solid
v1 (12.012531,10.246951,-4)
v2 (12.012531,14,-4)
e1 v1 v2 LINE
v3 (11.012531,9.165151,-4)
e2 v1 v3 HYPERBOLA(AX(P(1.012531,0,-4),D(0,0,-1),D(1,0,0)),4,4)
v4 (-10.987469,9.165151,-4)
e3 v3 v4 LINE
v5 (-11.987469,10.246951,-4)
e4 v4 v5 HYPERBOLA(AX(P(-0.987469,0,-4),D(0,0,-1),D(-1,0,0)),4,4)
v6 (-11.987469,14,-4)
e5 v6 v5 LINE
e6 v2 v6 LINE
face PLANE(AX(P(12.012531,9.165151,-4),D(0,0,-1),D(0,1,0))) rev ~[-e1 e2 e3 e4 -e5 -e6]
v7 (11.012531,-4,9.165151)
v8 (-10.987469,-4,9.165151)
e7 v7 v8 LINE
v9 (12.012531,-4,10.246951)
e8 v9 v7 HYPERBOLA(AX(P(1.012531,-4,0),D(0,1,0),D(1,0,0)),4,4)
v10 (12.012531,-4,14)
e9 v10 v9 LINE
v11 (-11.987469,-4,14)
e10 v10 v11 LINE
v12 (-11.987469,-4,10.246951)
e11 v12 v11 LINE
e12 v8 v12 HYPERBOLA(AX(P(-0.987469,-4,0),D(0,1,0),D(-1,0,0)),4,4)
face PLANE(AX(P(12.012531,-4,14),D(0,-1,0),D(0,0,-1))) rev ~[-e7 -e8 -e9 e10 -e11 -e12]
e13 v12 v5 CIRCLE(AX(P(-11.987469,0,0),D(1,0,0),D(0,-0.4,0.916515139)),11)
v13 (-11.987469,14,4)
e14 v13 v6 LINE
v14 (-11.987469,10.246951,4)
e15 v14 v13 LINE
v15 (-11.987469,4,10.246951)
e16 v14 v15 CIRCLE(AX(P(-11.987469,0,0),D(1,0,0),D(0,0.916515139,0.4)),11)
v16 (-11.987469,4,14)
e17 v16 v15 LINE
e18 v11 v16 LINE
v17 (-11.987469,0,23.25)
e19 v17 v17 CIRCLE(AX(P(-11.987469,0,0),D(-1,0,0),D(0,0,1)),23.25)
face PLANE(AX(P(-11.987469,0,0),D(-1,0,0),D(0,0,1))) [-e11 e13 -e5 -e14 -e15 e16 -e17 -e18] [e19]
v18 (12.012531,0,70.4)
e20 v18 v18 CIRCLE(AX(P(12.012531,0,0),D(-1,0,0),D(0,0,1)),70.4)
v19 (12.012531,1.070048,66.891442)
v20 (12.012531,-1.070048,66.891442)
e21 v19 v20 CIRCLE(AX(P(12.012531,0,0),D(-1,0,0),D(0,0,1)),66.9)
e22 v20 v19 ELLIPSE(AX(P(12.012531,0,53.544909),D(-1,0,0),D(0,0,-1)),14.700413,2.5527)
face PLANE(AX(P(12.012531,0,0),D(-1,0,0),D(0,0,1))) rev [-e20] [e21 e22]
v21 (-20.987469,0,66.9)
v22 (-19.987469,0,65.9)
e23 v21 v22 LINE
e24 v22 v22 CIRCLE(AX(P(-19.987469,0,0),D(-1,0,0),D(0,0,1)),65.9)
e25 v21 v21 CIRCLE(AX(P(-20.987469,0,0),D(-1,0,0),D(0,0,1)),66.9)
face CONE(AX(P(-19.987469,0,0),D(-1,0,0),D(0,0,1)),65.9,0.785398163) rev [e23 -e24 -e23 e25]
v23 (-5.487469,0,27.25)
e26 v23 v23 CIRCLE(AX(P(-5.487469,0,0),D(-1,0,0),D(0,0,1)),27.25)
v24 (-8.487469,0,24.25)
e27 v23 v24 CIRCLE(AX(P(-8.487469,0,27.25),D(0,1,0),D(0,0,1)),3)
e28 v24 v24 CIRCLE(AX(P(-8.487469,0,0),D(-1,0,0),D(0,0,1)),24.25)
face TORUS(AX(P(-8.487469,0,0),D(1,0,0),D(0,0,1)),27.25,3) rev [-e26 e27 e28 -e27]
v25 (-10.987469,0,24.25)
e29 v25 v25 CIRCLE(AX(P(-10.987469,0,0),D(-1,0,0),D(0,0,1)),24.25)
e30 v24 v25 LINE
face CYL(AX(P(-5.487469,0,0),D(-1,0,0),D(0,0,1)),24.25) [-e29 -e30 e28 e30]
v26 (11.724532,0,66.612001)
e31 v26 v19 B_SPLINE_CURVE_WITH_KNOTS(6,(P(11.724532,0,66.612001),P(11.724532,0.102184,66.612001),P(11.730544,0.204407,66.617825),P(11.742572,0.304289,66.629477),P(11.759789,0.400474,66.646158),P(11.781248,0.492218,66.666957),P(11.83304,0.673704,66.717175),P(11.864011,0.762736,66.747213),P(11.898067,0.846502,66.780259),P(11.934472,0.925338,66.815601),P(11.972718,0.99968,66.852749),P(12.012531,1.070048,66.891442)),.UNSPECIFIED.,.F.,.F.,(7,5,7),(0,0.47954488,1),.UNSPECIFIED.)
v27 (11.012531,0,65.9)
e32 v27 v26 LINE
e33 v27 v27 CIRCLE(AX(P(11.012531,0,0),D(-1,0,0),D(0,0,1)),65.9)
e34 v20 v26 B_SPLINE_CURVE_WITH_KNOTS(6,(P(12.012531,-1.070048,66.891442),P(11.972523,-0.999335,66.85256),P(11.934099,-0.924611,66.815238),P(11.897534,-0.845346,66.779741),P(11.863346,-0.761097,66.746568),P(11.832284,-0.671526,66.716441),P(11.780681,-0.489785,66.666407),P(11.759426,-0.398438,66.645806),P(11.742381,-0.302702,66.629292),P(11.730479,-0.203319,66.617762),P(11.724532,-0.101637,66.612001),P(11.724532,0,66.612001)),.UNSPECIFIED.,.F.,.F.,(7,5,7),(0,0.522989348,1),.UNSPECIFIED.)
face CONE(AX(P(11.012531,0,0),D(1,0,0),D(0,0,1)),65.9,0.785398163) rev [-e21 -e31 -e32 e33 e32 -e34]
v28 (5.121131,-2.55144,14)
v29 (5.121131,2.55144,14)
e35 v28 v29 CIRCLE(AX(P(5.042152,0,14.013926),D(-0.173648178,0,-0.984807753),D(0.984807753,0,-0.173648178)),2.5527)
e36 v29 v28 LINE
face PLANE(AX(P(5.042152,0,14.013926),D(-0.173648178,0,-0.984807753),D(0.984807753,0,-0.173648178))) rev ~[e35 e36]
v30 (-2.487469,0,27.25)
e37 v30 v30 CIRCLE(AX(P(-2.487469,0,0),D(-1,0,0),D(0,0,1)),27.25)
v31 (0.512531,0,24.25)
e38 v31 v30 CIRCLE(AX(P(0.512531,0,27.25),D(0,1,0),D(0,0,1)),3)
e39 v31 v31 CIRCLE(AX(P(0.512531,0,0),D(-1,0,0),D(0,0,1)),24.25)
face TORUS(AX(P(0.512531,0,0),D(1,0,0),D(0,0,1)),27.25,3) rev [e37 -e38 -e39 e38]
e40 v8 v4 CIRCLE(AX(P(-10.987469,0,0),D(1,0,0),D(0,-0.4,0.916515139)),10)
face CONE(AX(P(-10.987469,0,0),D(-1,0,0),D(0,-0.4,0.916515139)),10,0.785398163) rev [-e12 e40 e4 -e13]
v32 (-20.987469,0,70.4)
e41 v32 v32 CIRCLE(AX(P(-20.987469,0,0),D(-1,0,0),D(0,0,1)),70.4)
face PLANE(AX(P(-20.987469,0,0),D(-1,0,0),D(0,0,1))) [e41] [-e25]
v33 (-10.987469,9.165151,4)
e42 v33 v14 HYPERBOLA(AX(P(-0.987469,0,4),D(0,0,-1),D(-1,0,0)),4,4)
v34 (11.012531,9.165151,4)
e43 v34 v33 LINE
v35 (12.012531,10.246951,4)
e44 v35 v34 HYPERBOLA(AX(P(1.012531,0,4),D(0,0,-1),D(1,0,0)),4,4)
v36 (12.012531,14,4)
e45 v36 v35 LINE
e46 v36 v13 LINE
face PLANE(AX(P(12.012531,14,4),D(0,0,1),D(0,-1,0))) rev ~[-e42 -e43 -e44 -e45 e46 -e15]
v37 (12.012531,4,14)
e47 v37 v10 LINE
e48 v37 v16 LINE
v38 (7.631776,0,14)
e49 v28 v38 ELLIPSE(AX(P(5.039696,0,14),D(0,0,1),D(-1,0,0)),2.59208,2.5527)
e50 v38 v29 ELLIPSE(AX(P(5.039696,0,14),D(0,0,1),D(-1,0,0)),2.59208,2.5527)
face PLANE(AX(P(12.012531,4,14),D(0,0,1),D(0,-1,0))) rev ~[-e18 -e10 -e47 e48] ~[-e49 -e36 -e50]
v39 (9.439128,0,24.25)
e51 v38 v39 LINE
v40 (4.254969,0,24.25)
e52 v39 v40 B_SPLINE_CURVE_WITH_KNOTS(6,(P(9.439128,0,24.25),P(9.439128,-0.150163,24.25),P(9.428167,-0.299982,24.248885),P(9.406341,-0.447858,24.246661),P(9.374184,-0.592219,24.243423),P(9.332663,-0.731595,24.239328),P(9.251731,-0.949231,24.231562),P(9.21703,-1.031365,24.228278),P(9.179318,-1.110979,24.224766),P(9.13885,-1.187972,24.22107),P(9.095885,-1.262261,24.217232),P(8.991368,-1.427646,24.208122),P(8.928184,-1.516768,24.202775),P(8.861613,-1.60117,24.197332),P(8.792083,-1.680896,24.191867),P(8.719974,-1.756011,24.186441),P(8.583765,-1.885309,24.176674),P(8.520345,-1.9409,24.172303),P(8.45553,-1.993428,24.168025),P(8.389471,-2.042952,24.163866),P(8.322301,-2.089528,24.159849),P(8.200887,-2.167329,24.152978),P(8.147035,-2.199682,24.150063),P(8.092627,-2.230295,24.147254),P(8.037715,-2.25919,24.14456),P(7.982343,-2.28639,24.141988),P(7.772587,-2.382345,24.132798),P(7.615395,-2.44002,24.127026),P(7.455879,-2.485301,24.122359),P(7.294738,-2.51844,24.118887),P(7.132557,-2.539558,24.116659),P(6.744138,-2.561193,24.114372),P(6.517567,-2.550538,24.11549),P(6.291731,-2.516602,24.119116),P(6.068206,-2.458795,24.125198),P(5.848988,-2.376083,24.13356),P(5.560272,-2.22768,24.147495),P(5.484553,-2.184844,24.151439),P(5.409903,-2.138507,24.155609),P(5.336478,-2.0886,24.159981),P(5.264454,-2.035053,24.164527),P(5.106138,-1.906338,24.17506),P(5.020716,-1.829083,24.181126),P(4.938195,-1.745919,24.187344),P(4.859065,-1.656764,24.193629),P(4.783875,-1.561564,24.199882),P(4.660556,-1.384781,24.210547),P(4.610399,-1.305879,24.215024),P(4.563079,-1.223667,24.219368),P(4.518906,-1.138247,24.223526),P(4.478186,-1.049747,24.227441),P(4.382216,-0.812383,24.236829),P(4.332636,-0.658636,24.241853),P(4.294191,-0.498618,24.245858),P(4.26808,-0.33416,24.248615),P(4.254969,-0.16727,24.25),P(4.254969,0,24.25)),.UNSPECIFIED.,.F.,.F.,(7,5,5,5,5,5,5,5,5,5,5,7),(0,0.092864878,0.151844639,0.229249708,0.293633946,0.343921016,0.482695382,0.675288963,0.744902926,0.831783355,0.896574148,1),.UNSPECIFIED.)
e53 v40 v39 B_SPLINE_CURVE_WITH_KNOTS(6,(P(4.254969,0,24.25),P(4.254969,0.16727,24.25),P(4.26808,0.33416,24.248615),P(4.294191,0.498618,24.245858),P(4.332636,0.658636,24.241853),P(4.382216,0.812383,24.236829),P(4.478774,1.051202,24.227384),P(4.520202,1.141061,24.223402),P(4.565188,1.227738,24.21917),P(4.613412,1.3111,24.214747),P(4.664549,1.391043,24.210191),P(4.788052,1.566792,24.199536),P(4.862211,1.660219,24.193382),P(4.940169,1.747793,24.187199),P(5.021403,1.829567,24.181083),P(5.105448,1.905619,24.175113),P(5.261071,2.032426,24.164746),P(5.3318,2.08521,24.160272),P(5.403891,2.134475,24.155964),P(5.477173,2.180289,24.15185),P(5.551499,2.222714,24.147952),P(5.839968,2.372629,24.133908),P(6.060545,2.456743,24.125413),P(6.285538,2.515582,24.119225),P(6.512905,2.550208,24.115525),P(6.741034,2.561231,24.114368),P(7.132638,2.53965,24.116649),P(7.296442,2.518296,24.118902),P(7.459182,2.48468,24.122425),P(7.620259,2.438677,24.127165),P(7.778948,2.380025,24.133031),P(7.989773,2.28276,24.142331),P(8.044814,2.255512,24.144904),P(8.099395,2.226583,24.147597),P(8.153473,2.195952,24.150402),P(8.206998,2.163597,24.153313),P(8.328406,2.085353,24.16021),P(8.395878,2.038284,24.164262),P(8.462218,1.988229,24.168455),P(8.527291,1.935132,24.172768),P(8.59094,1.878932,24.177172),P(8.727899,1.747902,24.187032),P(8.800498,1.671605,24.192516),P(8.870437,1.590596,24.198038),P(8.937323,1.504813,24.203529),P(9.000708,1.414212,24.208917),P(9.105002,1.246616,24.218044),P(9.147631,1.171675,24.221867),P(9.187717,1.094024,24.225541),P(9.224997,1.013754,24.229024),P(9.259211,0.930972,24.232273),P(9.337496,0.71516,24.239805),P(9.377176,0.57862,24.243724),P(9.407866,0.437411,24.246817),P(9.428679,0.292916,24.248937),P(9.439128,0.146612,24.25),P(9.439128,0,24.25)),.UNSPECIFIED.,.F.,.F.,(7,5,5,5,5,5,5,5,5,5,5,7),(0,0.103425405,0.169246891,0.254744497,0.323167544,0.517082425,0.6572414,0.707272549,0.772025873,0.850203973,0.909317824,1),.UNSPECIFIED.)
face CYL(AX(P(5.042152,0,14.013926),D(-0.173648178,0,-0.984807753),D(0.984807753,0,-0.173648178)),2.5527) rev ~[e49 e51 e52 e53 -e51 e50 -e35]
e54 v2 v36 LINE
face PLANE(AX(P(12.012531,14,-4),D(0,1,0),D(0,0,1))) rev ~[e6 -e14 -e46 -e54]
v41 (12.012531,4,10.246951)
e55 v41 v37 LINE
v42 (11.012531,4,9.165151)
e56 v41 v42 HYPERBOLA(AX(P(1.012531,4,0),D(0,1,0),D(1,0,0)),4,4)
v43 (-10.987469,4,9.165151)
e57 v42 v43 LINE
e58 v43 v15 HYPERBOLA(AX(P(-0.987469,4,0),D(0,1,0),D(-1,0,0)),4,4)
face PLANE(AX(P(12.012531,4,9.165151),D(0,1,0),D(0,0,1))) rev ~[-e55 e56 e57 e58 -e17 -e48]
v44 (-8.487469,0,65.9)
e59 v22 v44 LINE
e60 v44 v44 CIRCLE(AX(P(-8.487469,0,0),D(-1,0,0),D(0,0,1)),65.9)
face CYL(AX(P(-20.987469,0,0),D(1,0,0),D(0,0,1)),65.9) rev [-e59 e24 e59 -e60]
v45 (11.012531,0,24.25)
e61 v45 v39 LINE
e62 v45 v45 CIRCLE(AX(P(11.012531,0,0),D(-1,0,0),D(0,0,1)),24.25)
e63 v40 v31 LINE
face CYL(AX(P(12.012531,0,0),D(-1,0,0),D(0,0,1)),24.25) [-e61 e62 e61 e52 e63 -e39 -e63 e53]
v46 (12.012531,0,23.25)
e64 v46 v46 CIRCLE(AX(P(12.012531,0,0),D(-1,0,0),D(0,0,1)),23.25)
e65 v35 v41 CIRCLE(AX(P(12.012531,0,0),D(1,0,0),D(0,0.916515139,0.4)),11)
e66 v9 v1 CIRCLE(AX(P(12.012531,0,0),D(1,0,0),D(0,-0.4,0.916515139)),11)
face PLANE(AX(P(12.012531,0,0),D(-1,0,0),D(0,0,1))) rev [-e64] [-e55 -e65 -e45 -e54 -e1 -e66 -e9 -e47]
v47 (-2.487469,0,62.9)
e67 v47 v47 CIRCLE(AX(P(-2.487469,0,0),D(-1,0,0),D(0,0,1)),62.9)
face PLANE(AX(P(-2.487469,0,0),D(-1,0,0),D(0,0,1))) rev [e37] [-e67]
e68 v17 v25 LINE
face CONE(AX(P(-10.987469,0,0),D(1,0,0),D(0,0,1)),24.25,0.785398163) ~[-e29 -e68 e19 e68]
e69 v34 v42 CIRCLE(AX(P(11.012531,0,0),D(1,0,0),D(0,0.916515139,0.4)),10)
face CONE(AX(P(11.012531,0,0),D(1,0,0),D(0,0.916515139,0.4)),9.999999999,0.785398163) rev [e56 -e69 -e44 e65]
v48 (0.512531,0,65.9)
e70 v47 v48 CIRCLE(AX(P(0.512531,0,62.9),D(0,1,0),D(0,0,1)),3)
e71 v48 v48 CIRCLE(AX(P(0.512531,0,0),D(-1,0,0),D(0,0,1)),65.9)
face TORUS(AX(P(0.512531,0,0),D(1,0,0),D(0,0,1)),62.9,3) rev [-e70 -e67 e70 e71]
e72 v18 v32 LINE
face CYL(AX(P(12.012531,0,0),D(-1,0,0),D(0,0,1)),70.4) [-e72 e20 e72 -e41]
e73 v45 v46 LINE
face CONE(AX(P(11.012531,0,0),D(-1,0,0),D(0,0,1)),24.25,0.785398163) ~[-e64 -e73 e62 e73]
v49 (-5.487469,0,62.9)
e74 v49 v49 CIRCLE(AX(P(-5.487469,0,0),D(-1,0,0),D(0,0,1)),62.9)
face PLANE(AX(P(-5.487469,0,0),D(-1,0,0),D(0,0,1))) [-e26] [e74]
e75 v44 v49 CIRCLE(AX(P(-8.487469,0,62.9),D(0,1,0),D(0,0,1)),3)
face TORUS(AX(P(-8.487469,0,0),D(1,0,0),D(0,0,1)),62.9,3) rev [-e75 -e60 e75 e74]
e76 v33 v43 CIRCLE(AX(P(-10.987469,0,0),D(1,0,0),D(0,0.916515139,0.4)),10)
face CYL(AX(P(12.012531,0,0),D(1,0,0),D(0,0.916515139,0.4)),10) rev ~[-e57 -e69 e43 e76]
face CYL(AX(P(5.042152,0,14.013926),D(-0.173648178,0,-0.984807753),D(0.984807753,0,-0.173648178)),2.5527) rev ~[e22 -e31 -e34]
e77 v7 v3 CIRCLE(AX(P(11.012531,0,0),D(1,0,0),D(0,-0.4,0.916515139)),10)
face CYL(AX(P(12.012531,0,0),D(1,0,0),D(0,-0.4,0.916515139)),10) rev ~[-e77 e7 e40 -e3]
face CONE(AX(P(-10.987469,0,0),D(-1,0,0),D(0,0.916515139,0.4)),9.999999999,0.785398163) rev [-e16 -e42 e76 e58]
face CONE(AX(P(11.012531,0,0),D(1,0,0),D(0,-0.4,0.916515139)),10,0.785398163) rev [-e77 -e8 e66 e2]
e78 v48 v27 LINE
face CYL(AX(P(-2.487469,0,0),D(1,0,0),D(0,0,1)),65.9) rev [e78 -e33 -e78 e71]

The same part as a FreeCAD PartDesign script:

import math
import FreeCAD as App
import Part
import Sketcher
from FreeCAD import Vector


def edges_at(feature, points):
    """Names of the edges that pass closest to the given points."""
    edges = feature.Shape.Edges
    near = lambda p: min(range(len(edges)), key=lambda i: edges[i].distToShape(Part.Vertex(*p))[0])
    return sorted({f"Edge{near(p) + 1}" for p in points})


def add_polygon(sketch, points):
    """Adds a closed chain of lines whose ends are joined by coincident constraints."""
    first, n = sketch.GeometryCount, len(points)
    for a, b in zip(points, points[1:] + points[:1]):
        sketch.addGeometry(Part.LineSegment(App.Vector(*a, 0), App.Vector(*b, 0)), False)
    for i in range(n):
        sketch.addConstraint(Sketcher.Constraint("Coincident", first + i, 2, first + (i + 1) % n, 1))

doc = App.newDocument("Part")
body = doc.addObject("PartDesign::Body", "Body")

sketch1 = body.newObject("Sketcher::SketchObject", "Sketch")
sketch1.AttachmentSupport = (doc.getObject("XZ_Plane"), [""])
sketch1.MapMode = "FlatFace"
add_polygon(sketch1, [(-12, 24.2), (-12, 0), (12, 0), (12, 24.2), (-2.5, 24.2), (-2.5, 65.9), (12, 65.9), (12, 70.4), (-21, 70.4), (-21, 65.9), (-5.5, 65.9), (-5.5, 24.2)])
sketch1.addConstraint([
    Sketcher.Constraint("Vertical", 0),
    Sketcher.Constraint("Horizontal", 1),
    Sketcher.Constraint("Vertical", 2),
    Sketcher.Constraint("Horizontal", 3),
    Sketcher.Constraint("Vertical", 4),
    Sketcher.Constraint("Horizontal", 5),
    Sketcher.Constraint("Vertical", 6),
    Sketcher.Constraint("Horizontal", 7),
    Sketcher.Constraint("Vertical", 8),
    Sketcher.Constraint("Horizontal", 9),
    Sketcher.Constraint("Vertical", 10),
    Sketcher.Constraint("Horizontal", 11),
    Sketcher.Constraint("PointOnObject", 0, 2, -1),
    Sketcher.Constraint("Horizontal", 5, 2, 8, 2),
    Sketcher.Constraint("Horizontal", 3, 2, 10, 2),
    Sketcher.Constraint("Vertical", 2, 2, 5, 2),
    Sketcher.Constraint("DistanceX", 1, 1, 1, 2, 24.0),
    Sketcher.Constraint("DistanceX", 7, 2, 7, 1, 33.0),
    Sketcher.Constraint("DistanceX", 3, 2, 3, 1, 14.5),
    Sketcher.Constraint("DistanceX", 9, 1, 9, 2, 15.5),
    Sketcher.Constraint("DistanceY", 6, 1, 6, 2, 4.5),
    Sketcher.Constraint("DistanceY", 0, 2, 0, 1, 24.25),
    Sketcher.Constraint("DistanceY", 4, 1, 4, 2, 41.65),
    Sketcher.Constraint("DistanceX", 0, 2, -1, 1, 11.987469),
])
revolution = body.newObject("PartDesign::Revolution", "Revolution")
revolution.Profile = sketch1
revolution.ReferenceAxis = (sketch1, ["H_Axis"])
revolution.Angle = 360
doc.recompute()

fillet = body.newObject("PartDesign::Fillet", "Fillet")
fillet.Base = (revolution, edges_at(revolution, [
    (-2.487, 0, -24.25),
    (-2.487, 0, -65.9),
    (-5.487, 0, -24.25),
    (-5.487, 0, -65.9),
]))
fillet.Radius = 3

sketch2 = body.newObject("Sketcher::SketchObject", "Sketch001")
sketch2.AttachmentSupport = (doc.getObject("YZ_Plane"), [""])
sketch2.MapMode = "FlatFace"
sketch2.AttachmentOffset = App.Placement(Vector(0, 0, 12.012531), App.Rotation())
sketch2.addGeometry([
    Part.LineSegment(Vector(-4, 14, 0), Vector(-4, 9.2, 0)),
    Part.ArcOfCircle(Part.Circle(Vector(0, 0, 0), Vector(0, 0, 1), 10), math.radians(114), math.radians(336)),
    Part.LineSegment(Vector(9.2, -4, 0), Vector(14, -4, 0)),
    Part.LineSegment(Vector(14, -4, 0), Vector(14, 4, 0)),
    Part.LineSegment(Vector(14, 4, 0), Vector(9.2, 4, 0)),
    Part.ArcOfCircle(Part.Circle(Vector(0, 0, 0), Vector(0, 0, 1), 10), math.radians(24), math.radians(66)),
    Part.LineSegment(Vector(4, 9.2, 0), Vector(4, 14, 0)),
    Part.LineSegment(Vector(4, 14, 0), Vector(-4, 14, 0)),
], False)
sketch2.addConstraint([
    Sketcher.Constraint("Coincident", 0, 2, 1, 1),
    Sketcher.Constraint("Coincident", 1, 2, 2, 1),
    Sketcher.Constraint("Coincident", 2, 2, 3, 1),
    Sketcher.Constraint("Coincident", 3, 2, 4, 1),
    Sketcher.Constraint("Coincident", 4, 2, 5, 1),
    Sketcher.Constraint("Coincident", 5, 2, 6, 1),
    Sketcher.Constraint("Coincident", 6, 2, 7, 1),
    Sketcher.Constraint("Coincident", 7, 2, 0, 1),
    Sketcher.Constraint("Vertical", 0),
    Sketcher.Constraint("Horizontal", 2),
    Sketcher.Constraint("Vertical", 3),
    Sketcher.Constraint("Horizontal", 4),
    Sketcher.Constraint("Vertical", 6),
    Sketcher.Constraint("Horizontal", 7),
    Sketcher.Constraint("Coincident", 1, 3, -1, 1),
    Sketcher.Constraint("Coincident", 5, 3, -1, 1),
    Sketcher.Constraint("Equal", 1, 5),
    Sketcher.Constraint("Horizontal", 0, 2, 5, 2),
    Sketcher.Constraint("Vertical", 1, 2, 4, 2),
    Sketcher.Constraint("Equal", 4, 0),
    Sketcher.Constraint("Equal", 7, 3),
    Sketcher.Constraint("Radius", 1, 10.0),
    Sketcher.Constraint("DistanceX", 7, 2, 7, 1, 8.0),
    Sketcher.Constraint("DistanceX", -1, 1, 2, 2, 14.0),
])
pocket1 = body.newObject("PartDesign::Pocket", "Pocket")
pocket1.Profile = sketch2
pocket1.Length = 25
doc.recompute()

chamfer = body.newObject("PartDesign::Chamfer", "Chamfer")
chamfer.Base = (pocket1, edges_at(pocket1, [
    (12.013, 0, -65.9),
    (12.013, 0, -24.25),
    (12.013, -7.071, -7.071),
    (12.013, 7.071, 7.071),
    (-11.987, 0, -24.25),
    (-20.987, 0, -65.9),
    (-11.987, -7.071, -7.071),
    (-11.987, 7.071, 7.071),
]))
chamfer.Size = 1

sketch3 = body.newObject("Sketcher::SketchObject", "Sketch002")
sketch3.Placement = App.Placement(Vector(2.548562, 0, 14.453613), App.Rotation(Vector(0.984807753, 0, -0.173648178), Vector(0, -1, 0), Vector(-0.173648178, 0, -0.984807753), "ZXY"))
sketch3.addGeometry(Part.Circle(Vector(2.5, 0, 0), Vector(0, 0, 1), 2.6), False)
sketch3.addConstraint([
    Sketcher.Constraint("PointOnObject", 0, 3, -1),
    Sketcher.Constraint("Diameter", 0, 5.1054),
    Sketcher.Constraint("DistanceX", -1, 1, 0, 3, 2.532058),
])
pocket2 = body.newObject("PartDesign::Pocket", "Pocket001")
pocket2.Profile = sketch3
pocket2.Type = "ThroughAll"

doc.recompute()
